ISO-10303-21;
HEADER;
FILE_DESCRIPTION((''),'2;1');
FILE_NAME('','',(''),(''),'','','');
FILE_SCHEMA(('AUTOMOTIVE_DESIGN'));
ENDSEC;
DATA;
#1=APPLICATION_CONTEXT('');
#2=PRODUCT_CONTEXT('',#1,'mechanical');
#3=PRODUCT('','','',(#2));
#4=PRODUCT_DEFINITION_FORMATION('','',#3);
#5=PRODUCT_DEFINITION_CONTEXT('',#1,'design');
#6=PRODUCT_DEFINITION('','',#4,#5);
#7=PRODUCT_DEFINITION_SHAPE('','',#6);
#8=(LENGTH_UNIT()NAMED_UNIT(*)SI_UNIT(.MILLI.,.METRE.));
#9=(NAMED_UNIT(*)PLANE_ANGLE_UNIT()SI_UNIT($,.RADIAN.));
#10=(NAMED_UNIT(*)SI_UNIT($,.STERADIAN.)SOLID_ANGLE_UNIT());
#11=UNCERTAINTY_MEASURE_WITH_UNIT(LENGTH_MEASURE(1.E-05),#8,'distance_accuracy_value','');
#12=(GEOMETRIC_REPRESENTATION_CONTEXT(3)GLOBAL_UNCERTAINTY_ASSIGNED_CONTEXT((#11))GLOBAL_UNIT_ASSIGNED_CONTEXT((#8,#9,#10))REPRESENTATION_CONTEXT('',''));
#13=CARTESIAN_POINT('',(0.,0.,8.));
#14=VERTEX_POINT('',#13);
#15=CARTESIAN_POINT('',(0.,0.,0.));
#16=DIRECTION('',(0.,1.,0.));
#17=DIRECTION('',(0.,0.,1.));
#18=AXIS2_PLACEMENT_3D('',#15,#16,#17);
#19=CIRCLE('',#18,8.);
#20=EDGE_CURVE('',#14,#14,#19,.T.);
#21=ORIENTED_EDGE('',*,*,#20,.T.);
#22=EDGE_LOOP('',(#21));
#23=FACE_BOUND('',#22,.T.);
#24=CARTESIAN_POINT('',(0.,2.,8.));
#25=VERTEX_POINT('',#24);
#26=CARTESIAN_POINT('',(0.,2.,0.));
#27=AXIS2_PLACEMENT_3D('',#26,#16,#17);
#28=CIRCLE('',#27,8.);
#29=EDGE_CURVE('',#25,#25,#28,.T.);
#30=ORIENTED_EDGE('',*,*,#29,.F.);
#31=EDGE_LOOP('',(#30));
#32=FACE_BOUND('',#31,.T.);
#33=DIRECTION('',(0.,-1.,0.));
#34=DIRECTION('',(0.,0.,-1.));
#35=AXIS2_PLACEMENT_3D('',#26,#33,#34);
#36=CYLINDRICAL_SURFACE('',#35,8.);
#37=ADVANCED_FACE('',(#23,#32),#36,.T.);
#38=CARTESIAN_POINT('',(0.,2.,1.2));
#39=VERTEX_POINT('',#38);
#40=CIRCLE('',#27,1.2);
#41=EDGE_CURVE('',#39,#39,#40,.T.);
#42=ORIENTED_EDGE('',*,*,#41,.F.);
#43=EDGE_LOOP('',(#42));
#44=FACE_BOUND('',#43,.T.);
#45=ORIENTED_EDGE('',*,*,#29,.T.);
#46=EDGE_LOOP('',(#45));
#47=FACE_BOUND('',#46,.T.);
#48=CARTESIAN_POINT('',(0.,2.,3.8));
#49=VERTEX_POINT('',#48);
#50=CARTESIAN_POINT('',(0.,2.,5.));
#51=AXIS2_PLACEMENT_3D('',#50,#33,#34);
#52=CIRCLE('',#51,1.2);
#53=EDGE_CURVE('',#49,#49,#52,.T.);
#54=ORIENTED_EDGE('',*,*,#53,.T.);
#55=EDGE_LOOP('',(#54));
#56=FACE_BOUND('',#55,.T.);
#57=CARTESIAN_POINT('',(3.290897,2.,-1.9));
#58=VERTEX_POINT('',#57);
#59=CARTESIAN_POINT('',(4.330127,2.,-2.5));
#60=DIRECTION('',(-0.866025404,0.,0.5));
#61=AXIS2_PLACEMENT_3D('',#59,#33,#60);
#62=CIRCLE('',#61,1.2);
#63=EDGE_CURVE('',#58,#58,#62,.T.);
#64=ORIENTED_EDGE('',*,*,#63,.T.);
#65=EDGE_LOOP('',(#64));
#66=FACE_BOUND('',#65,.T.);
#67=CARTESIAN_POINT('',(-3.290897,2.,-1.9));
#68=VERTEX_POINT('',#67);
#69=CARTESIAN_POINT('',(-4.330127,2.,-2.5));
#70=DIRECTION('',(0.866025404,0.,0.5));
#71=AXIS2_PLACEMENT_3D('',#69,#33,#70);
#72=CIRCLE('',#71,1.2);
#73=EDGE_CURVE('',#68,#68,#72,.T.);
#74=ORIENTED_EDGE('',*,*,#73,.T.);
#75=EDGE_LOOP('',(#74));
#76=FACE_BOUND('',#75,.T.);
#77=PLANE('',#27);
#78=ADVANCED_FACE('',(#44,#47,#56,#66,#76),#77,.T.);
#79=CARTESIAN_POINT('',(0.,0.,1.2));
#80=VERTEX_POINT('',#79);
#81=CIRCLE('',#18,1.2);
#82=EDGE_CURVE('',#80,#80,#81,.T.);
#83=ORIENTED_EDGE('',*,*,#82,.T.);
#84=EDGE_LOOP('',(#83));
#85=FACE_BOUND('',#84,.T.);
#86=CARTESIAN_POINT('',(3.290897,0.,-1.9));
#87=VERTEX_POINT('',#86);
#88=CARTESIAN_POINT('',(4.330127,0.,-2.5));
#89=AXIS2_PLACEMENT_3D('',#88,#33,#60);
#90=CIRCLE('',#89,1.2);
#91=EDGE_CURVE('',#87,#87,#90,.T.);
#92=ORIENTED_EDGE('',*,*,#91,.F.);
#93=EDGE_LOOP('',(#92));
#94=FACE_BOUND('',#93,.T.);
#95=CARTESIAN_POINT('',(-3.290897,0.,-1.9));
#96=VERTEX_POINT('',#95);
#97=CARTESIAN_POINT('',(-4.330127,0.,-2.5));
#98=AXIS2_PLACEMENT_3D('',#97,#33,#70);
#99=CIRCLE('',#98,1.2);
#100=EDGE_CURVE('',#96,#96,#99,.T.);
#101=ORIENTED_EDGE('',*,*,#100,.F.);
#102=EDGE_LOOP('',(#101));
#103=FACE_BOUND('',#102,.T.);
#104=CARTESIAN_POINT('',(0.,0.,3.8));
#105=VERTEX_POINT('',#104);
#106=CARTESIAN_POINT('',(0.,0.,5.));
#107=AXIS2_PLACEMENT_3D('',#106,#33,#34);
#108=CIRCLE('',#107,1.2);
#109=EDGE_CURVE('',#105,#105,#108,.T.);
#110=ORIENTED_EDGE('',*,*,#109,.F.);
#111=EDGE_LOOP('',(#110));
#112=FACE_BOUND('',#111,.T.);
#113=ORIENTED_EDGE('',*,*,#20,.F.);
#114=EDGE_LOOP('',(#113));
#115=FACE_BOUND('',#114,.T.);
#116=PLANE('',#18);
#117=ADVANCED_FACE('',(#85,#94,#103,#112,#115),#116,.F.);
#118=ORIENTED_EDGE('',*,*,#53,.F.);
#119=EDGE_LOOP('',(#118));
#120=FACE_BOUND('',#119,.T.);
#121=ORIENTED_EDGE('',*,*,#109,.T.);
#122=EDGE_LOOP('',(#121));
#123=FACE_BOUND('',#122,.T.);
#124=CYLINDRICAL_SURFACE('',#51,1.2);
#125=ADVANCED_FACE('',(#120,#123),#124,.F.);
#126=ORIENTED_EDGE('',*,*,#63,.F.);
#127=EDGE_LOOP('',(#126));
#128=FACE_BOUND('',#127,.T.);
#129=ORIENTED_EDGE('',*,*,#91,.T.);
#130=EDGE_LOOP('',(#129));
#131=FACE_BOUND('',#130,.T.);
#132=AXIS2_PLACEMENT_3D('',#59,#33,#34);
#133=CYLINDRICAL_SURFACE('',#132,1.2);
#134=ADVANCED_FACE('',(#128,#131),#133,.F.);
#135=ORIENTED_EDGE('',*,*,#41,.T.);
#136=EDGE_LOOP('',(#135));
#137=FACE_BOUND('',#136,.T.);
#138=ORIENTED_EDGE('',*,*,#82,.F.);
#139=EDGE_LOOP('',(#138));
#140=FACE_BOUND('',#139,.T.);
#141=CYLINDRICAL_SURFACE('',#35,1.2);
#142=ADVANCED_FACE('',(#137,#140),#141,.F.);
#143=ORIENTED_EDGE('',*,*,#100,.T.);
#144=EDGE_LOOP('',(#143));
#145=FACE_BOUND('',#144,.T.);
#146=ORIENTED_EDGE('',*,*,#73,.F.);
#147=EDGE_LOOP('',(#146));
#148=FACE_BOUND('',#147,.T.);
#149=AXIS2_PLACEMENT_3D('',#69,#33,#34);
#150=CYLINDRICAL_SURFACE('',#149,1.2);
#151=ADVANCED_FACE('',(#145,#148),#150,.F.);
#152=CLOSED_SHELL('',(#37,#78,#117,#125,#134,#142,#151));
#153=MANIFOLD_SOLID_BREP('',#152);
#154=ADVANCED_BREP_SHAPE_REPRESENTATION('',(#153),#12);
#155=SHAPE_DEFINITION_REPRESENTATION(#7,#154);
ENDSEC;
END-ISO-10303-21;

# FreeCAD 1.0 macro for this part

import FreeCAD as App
import Part
import Sketcher

doc = App.newDocument("Part")
params = doc.addObject("Spreadsheet::Sheet", "Params")
for row, (alias, value) in enumerate([
    ("sketch1_diameter", "16 mm"),
    ("sketch1_diameter2", "2.4 mm"),
    ("pad1_length", "2 mm"),
    ("sketch2_diameter", "2.4 mm"),
], start=1):
    params.set(f"A{row}", alias)
    params.set(f"B{row}", "=" + value)
    params.setAlias(f"B{row}", alias)

body = doc.addObject("PartDesign::Body", "Body")

sketch1 = body.newObject("Sketcher::SketchObject", "Sketch")
sketch1.AttachmentSupport = (doc.getObject("XZ_Plane"), [""])
sketch1.MapMode = "FlatFace"
sketch1.addGeometry([
    Part.Circle(App.Vector(0, 0, 0), App.Vector(0, 0, 1), 8),
    Part.Circle(App.Vector(0, 0, 0), App.Vector(0, 0, 1), 1.2),
], False)
sketch1.addConstraint([
    Sketcher.Constraint("Coincident", 0, 3, -1, 1),
    Sketcher.Constraint("Coincident", 1, 3, -1, 1),
    Sketcher.Constraint("Diameter", 0, 16.0),
    Sketcher.Constraint("Diameter", 1, 2.4),
])
sketch1.setExpression("Constraints[2]", "Params.sketch1_diameter")
sketch1.setExpression("Constraints[3]", "Params.sketch1_diameter2")
pad1 = body.newObject("PartDesign::Pad", "Pad")
pad1.Profile = sketch1
pad1.setExpression("Length", "Params.pad1_length")
pad1.Reversed = True

sketch2 = body.newObject("Sketcher::SketchObject", "Sketch001")
sketch2.AttachmentSupport = (doc.getObject("XZ_Plane"), [""])
sketch2.MapMode = "FlatFace"
sketch2.addGeometry(Part.Circle(App.Vector(0, 5, 0), App.Vector(0, 0, 1), 1.2), False)
sketch2.addConstraint([
    Sketcher.Constraint("PointOnObject", 0, 3, -2),
    Sketcher.Constraint("Diameter", 0, 2.4),
    Sketcher.Constraint("DistanceY", -1, 1, 0, 3, 5.0),
])
sketch2.setExpression("Constraints[1]", "Params.sketch2_diameter")
pocket1 = body.newObject("PartDesign::Pocket", "Pocket")
pocket1.Profile = sketch2
pocket1.Type = "ThroughAll"
doc.recompute()

polarpattern = body.newObject("PartDesign::PolarPattern", "PolarPattern")
polarpattern.Originals = [pocket1]
polarpattern.Axis = (doc.getObject("Y_Axis"), [""])
polarpattern.Angle = 360
polarpattern.Occurrences = 3
body.Tip = polarpattern

doc.recompute()
